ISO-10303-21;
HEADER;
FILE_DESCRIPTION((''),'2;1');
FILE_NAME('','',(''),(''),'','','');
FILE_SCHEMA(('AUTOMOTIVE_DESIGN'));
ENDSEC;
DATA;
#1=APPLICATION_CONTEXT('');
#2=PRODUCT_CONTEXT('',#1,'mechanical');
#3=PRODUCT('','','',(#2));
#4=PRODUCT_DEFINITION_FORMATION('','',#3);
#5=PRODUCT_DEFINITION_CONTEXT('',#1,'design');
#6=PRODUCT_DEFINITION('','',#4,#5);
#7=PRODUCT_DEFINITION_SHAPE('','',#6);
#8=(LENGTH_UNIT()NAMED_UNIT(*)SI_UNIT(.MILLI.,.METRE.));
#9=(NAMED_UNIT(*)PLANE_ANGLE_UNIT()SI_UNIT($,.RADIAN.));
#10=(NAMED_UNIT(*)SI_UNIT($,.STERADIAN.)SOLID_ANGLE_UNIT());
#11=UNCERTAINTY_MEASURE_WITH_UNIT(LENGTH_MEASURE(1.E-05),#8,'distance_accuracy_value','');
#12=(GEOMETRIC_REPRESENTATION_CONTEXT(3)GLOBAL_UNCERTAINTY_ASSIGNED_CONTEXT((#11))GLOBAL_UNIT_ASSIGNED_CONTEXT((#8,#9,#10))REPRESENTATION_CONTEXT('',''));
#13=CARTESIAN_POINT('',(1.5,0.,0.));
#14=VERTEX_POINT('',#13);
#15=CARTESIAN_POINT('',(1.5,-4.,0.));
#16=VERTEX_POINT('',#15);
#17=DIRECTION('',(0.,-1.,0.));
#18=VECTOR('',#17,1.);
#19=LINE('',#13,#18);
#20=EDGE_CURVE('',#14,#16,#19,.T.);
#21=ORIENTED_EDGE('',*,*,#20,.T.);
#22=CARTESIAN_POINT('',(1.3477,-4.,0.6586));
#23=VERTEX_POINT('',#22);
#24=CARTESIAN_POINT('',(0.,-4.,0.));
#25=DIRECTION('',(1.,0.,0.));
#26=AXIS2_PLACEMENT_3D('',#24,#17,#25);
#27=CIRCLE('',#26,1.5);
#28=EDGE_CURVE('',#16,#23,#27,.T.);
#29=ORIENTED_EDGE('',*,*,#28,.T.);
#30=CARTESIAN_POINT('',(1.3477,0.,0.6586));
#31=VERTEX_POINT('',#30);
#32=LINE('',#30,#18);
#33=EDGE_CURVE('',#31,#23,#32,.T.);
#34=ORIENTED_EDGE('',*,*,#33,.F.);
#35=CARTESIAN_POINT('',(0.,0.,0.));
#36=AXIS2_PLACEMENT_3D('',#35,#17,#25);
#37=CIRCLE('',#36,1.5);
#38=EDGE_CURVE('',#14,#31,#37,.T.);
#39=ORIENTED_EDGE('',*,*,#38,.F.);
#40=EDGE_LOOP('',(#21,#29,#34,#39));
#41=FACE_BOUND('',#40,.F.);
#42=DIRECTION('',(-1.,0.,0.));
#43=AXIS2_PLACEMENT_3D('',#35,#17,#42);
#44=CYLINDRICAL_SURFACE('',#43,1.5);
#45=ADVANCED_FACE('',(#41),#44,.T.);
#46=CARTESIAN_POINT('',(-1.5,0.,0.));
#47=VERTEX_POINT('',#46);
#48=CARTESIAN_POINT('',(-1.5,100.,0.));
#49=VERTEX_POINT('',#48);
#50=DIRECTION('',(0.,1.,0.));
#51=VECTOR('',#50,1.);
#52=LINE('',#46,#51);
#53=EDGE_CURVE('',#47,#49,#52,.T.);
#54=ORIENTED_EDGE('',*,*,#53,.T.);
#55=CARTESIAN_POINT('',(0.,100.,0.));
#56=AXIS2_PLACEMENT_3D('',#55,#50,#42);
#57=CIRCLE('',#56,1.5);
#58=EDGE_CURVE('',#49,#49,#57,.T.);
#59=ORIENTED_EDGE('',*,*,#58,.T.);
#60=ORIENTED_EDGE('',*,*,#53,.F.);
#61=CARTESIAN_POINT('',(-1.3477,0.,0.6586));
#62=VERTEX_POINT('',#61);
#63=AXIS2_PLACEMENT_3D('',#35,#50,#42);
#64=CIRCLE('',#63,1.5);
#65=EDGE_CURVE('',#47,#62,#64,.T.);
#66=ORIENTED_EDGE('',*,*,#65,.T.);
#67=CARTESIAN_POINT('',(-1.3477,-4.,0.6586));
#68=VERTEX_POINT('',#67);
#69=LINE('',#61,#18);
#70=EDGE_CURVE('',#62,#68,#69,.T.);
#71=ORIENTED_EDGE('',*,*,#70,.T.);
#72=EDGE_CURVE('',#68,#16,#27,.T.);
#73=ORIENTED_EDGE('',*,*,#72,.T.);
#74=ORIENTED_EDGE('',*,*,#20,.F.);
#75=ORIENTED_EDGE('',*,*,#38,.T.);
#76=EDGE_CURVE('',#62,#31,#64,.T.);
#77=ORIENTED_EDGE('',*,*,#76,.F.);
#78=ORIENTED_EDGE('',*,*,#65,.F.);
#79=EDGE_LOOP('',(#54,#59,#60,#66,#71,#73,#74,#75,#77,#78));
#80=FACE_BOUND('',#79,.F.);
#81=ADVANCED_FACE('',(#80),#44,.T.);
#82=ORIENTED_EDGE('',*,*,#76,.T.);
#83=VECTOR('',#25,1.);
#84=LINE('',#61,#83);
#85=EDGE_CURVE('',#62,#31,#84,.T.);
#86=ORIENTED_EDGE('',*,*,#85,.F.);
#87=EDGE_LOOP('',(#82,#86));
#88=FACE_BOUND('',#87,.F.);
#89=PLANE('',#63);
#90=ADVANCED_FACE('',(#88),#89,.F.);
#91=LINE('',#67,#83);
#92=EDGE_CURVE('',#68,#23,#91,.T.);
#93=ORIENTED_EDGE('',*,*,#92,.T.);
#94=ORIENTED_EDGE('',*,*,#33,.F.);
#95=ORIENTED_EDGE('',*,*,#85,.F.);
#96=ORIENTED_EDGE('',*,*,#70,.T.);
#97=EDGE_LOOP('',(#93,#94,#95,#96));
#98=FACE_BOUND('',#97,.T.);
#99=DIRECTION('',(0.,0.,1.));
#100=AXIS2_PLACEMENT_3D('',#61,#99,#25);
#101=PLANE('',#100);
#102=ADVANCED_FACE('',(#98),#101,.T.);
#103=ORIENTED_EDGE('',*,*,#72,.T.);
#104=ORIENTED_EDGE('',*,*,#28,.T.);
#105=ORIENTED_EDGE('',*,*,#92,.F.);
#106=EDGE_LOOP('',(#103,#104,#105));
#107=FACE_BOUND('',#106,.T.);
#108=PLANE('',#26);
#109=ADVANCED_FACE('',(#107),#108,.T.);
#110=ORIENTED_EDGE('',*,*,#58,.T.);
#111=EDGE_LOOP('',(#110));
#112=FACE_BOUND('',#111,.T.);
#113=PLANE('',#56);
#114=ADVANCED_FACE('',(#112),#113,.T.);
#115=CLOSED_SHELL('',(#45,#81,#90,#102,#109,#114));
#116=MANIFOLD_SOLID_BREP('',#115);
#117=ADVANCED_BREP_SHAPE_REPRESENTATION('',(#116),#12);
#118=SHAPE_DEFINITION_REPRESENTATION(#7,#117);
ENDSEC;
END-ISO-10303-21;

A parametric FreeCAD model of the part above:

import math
import FreeCAD as App
import Part
import Sketcher
from FreeCAD import Vector

doc = App.newDocument("Part")
params = doc.addObject("Spreadsheet::Sheet", "Params")
for row, (alias, value) in enumerate([
    ("sketch1_diameter", "3 mm"),
    ("pad1_length", "100 mm"),
    ("sketch2_radius", "1.5 mm"),
    ("pad2_length", "4 mm"),
], start=1):
    params.set(f"A{row}", alias)
    params.set(f"B{row}", "=" + value)
    params.setAlias(f"B{row}", alias)

body = doc.addObject("PartDesign::Body", "Body")

# Sketch on XZ plane
sketch1 = body.newObject("Sketcher::SketchObject", "Sketch")
sketch1.AttachmentSupport = (doc.getObject("XZ_Plane"), [""])
sketch1.MapMode = "FlatFace"
sketch1.addGeometry(Part.Circle(Vector(0, 0, 0), Vector(0, 0, 1), 1.5), False)
sketch1.addConstraint([
    Sketcher.Constraint("Coincident", 0, 3, -1, 1),
    Sketcher.Constraint("Diameter", 0, 3.0),
])
sketch1.setExpression("Constraints[1]", "Params.sketch1_diameter")
pad1 = body.newObject("PartDesign::Pad", "Pad")
pad1.Profile = sketch1
pad1.setExpression("Length", "Params.pad1_length")
pad1.Reversed = True

# Sketch on XZ plane
sketch2 = body.newObject("Sketcher::SketchObject", "Sketch001")
sketch2.AttachmentSupport = (doc.getObject("XZ_Plane"), [""])
sketch2.MapMode = "FlatFace"
sketch2.addGeometry([
    Part.ArcOfCircle(Part.Circle(Vector(0, 0, 0), Vector(0, 0, 1), 1.5), math.radians(153.95596), math.radians(386.04404)),
    Part.LineSegment(Vector(-1.3477, 0.6586, 0), Vector(1.3477, 0.6586, 0)),
], False)
sketch2.addConstraint([
    Sketcher.Constraint("Coincident", 0, 1, 1, 1),
    Sketcher.Constraint("Coincident", 1, 2, 0, 2),
    Sketcher.Constraint("Horizontal", 1),
    Sketcher.Constraint("Coincident", 0, 3, -1, 1),
    Sketcher.Constraint("Radius", 0, 1.5),
    Sketcher.Constraint("DistanceX", 1, 1, 1, 2, 2.6954),
])
sketch2.setExpression("Constraints[4]", "Params.sketch2_radius")
pad2 = body.newObject("PartDesign::Pad", "Pad001")
pad2.Profile = sketch2
pad2.setExpression("Length", "Params.pad2_length")

doc.recompute()
